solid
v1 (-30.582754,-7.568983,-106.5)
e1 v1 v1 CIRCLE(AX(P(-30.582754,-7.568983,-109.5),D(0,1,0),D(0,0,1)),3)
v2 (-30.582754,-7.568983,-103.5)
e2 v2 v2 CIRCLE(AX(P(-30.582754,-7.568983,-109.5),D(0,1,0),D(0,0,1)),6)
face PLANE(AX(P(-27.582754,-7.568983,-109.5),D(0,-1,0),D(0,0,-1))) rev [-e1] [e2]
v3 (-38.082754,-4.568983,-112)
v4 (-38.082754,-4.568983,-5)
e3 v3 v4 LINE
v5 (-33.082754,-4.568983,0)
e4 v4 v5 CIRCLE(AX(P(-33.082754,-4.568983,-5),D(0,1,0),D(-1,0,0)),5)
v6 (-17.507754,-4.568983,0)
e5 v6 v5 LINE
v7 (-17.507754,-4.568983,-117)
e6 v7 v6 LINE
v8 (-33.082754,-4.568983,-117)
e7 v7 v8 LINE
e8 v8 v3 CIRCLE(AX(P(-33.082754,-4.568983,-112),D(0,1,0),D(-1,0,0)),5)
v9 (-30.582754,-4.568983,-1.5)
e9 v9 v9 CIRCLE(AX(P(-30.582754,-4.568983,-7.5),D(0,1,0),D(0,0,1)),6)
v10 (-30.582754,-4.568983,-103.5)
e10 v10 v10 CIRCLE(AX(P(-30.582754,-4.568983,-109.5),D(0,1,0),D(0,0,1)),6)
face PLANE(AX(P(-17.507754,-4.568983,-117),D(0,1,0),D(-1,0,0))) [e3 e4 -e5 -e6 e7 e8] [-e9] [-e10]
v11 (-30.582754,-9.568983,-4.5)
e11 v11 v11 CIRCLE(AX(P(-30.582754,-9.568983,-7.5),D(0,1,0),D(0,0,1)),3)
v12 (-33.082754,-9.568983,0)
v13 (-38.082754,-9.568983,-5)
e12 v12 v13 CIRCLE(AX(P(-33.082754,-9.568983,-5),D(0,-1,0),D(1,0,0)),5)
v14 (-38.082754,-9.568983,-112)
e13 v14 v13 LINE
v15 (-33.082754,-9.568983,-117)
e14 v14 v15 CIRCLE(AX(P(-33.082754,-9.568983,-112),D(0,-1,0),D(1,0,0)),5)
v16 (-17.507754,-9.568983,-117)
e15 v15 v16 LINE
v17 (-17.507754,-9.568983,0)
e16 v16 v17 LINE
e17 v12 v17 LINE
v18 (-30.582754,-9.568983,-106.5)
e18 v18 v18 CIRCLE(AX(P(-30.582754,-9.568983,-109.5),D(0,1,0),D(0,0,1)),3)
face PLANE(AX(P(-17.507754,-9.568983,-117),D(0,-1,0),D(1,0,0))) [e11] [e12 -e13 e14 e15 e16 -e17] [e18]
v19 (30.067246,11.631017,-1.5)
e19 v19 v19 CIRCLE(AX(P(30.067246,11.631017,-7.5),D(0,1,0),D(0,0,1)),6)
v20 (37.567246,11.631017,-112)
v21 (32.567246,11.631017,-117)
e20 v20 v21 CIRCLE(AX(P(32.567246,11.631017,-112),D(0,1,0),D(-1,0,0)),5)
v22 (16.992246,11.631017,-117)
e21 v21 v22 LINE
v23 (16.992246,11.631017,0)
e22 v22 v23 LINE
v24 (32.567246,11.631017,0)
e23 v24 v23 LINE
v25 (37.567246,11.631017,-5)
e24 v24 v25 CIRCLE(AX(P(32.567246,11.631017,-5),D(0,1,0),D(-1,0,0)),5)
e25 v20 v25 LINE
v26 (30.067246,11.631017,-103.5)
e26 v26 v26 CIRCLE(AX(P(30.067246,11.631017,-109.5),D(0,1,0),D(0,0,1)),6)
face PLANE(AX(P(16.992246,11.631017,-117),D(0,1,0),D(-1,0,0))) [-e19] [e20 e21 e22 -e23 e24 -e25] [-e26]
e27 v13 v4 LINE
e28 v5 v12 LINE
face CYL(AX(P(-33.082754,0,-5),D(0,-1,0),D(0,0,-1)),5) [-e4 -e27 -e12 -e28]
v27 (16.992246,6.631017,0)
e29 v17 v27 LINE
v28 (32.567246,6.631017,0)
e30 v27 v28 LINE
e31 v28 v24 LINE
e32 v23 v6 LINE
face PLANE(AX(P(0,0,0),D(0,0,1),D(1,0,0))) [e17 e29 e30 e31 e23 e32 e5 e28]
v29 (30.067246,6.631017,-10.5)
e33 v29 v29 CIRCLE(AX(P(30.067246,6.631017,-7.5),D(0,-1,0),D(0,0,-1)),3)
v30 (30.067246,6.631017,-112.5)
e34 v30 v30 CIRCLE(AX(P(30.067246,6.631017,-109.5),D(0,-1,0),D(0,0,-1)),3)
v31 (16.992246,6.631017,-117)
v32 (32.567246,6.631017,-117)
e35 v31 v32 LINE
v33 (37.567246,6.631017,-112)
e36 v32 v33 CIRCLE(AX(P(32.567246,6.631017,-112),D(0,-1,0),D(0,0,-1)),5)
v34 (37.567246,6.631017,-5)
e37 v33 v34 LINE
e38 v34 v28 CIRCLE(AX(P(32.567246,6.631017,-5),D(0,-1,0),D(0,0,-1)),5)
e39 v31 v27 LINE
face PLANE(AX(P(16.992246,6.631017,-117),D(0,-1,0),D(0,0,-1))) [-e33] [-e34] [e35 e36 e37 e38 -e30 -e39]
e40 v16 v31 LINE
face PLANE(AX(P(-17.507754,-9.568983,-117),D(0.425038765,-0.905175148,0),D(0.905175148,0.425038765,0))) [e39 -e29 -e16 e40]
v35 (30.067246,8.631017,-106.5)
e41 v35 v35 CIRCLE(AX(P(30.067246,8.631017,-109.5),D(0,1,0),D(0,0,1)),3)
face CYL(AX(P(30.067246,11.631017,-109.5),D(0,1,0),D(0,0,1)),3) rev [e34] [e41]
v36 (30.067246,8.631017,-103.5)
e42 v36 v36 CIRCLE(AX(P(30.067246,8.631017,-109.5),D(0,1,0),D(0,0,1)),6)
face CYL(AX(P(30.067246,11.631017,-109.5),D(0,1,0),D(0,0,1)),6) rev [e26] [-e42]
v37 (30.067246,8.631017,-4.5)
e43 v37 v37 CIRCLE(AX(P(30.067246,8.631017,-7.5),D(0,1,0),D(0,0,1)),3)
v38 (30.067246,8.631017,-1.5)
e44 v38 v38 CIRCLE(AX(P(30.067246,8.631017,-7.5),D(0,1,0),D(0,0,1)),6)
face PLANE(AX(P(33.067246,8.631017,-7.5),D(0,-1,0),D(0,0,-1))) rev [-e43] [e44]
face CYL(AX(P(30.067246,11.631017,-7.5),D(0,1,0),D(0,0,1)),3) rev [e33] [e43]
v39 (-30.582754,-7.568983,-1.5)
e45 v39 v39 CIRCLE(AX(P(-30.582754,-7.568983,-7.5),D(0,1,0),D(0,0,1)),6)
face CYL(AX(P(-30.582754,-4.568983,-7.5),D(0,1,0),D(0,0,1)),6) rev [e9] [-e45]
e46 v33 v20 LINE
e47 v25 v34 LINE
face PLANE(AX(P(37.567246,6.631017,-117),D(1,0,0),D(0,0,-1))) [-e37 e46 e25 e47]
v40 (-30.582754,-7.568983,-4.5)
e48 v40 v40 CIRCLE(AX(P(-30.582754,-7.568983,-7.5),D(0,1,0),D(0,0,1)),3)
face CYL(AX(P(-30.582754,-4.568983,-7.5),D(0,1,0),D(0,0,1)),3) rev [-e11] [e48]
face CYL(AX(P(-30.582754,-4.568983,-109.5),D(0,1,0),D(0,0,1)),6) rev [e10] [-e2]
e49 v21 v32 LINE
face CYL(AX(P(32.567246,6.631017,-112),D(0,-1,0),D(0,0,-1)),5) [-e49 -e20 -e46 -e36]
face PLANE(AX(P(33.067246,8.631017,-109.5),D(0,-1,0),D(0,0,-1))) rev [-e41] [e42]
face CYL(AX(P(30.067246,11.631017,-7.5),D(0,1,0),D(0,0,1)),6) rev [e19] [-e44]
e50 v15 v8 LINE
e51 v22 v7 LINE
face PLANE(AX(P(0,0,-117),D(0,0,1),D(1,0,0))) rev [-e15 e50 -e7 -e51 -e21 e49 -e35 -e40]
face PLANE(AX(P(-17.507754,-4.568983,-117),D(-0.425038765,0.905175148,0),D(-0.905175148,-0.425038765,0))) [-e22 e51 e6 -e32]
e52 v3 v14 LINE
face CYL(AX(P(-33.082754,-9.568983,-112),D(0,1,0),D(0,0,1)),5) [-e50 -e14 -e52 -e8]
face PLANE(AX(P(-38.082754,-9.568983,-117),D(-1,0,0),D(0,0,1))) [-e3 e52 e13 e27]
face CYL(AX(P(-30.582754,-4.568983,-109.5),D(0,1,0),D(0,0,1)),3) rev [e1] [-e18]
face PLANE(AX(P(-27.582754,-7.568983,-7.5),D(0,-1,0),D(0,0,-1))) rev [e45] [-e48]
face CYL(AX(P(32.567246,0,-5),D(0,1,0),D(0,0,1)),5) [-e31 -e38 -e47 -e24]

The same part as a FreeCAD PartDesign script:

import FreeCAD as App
import Part
import Sketcher
from FreeCAD import Vector
Q = App.Units.Quantity


def edges_at(feature, points):
    """Names of the edges that pass closest to the given points."""
    edges = feature.Shape.Edges
    near = lambda p: min(range(len(edges)), key=lambda i: edges[i].distToShape(Part.Vertex(*p))[0])
    return sorted({f"Edge{near(p) + 1}" for p in points})

doc = App.newDocument("Part")
body = doc.addObject("PartDesign::Body", "Body")

# Sketch on XY plane
sketch1 = body.newObject("Sketcher::SketchObject", "Sketch")
sketch1.AttachmentSupport = (doc.getObject("XY_Plane"), [""])
sketch1.MapMode = "FlatFace"
sketch1.addGeometry(Part.LineSegment(Vector(17, 12, 0), Vector(-18, -5, 0)), False)
sketch1.addGeometry(Part.LineSegment(Vector(-18, -5, 0), Vector(-38, -5, 0)), False)
sketch1.addGeometry(Part.LineSegment(Vector(-38, -5, 0), Vector(-38, -10, 0)), False)
sketch1.addGeometry(Part.LineSegment(Vector(-38, -10, 0), Vector(-18, -10, 0)), False)
sketch1.addGeometry(Part.LineSegment(Vector(-18, -10, 0), Vector(17, 7, 0)), False)
sketch1.addGeometry(Part.LineSegment(Vector(17, 7, 0), Vector(38, 7, 0)), False)
sketch1.addGeometry(Part.LineSegment(Vector(38, 7, 0), Vector(38, 12, 0)), False)
sketch1.addGeometry(Part.LineSegment(Vector(38, 12, 0), Vector(17, 12, 0)), False)
sketch1.addConstraint(Sketcher.Constraint("Coincident", 0, 2, 1, 1))
sketch1.addConstraint(Sketcher.Constraint("Coincident", 1, 2, 2, 1))
sketch1.addConstraint(Sketcher.Constraint("Coincident", 2, 2, 3, 1))
sketch1.addConstraint(Sketcher.Constraint("Coincident", 3, 2, 4, 1))
sketch1.addConstraint(Sketcher.Constraint("Coincident", 4, 2, 5, 1))
sketch1.addConstraint(Sketcher.Constraint("Coincident", 5, 2, 6, 1))
sketch1.addConstraint(Sketcher.Constraint("Coincident", 6, 2, 7, 1))
sketch1.addConstraint(Sketcher.Constraint("Coincident", 7, 2, 0, 1))
sketch1.addConstraint(Sketcher.Constraint("Horizontal", 1))
sketch1.addConstraint(Sketcher.Constraint("Vertical", 2))
sketch1.addConstraint(Sketcher.Constraint("Horizontal", 3))
sketch1.addConstraint(Sketcher.Constraint("Horizontal", 5))
sketch1.addConstraint(Sketcher.Constraint("Vertical", 6))
sketch1.addConstraint(Sketcher.Constraint("Horizontal", 7))
sketch1.addConstraint(Sketcher.Constraint("Parallel", 0, 4))
sketch1.addConstraint(Sketcher.Constraint("Vertical", 0, 2, 3, 2))
sketch1.addConstraint(Sketcher.Constraint("Vertical", 4, 2, 7, 2))
sketch1.addConstraint(Sketcher.Constraint("Equal", 3, 5))
sketch1.addConstraint(Sketcher.Constraint("DistanceY", 2, 2, 2, 1, Q("5 mm")))
sketch1.addConstraint(Sketcher.Constraint("DistanceX", 0, 2, 4, 2, Q("34.5 mm")))
sketch1.addConstraint(Sketcher.Constraint("DistanceY", 0, 2, 4, 2, Q("11.2 mm")))
sketch1.addConstraint(Sketcher.Constraint("DistanceX", 1, 2, 1, 1, Q("20.575 mm")))
sketch1.addConstraint(Sketcher.Constraint("DistanceX", 0, 2, -1, 1, Q("17.507754 mm")))
sketch1.addConstraint(Sketcher.Constraint("DistanceY", 0, 2, -1, 1, Q("4.568983 mm")))
pad1 = body.newObject("PartDesign::Pad", "Pad")
pad1.Profile = sketch1
pad1.Length = 117
pad1.Reversed = True

# Sketch on XZ plane
sketch2 = body.newObject("Sketcher::SketchObject", "Sketch001")
sketch2.AttachmentSupport = (doc.getObject("XZ_Plane"), [""])
sketch2.MapMode = "FlatFace"
sketch2.AttachmentOffset = App.Placement(Vector(0, 0, 4.568983), App.Rotation())
sketch2.addGeometry(Part.Circle(Vector(-30.6, -109.5, 0), Vector(0, 0, 1), 3), False)
sketch2.addGeometry(Part.Circle(Vector(-30.6, -7.5, 0), Vector(0, 0, 1), 3), False)
sketch2.addConstraint(Sketcher.Constraint("Equal", 0, 1))
sketch2.addConstraint(Sketcher.Constraint("Vertical", 0, 3, 1, 3))
sketch2.addConstraint(Sketcher.Constraint("Diameter", 0, Q("6 mm")))
sketch2.addConstraint(Sketcher.Constraint("DistanceY", 0, 3, 1, 3, Q("102 mm")))
sketch2.addConstraint(Sketcher.Constraint("DistanceY", 0, 3, -1, 1, Q("109.5 mm")))
sketch2.addConstraint(Sketcher.Constraint("DistanceX", 0, 3, -1, 1, Q("30.582754 mm")))
doc.recompute()
hole = body.newObject("PartDesign::Hole", "Hole")
hole.Profile = sketch2
hole.ThreadType = "None"
hole.Diameter = 6
hole.DepthType = "ThroughAll"
hole.HoleCutType = "Counterbore"
hole.HoleCutDiameter = 12
hole.HoleCutDepth = 3
hole.Reversed = True

# Sketch on XZ plane
sketch3 = body.newObject("Sketcher::SketchObject", "Sketch002")
sketch3.AttachmentSupport = (doc.getObject("XZ_Plane"), [""])
sketch3.MapMode = "FlatFace"
sketch3.AttachmentOffset = App.Placement(Vector(0, 0, -11.631017), App.Rotation())
sketch3.addGeometry(Part.Circle(Vector(30.1, -7.5, 0), Vector(0, 0, 1), 3), False)
sketch3.addGeometry(Part.Circle(Vector(30.1, -109.5, 0), Vector(0, 0, 1), 3), False)
sketch3.addConstraint(Sketcher.Constraint("Equal", 0, 1))
sketch3.addConstraint(Sketcher.Constraint("Vertical", 0, 3, 1, 3))
sketch3.addConstraint(Sketcher.Constraint("Diameter", 0, Q("6 mm")))
sketch3.addConstraint(Sketcher.Constraint("DistanceY", 1, 3, 0, 3, Q("102 mm")))
sketch3.addConstraint(Sketcher.Constraint("DistanceY", 0, 3, -1, 1, Q("7.5 mm")))
sketch3.addConstraint(Sketcher.Constraint("DistanceX", -1, 1, 0, 3, Q("30.067246 mm")))
doc.recompute()
hole2 = body.newObject("PartDesign::Hole", "Hole001")
hole2.Profile = sketch3
hole2.ThreadType = "None"
hole2.Diameter = 6
hole2.DepthType = "ThroughAll"
hole2.HoleCutType = "Counterbore"
hole2.HoleCutDiameter = 12
hole2.HoleCutDepth = 3
hole2.Reversed = True
doc.recompute()

fillet = body.newObject("PartDesign::Fillet", "Fillet")
fillet.Base = (hole2, edges_at(hole2, [
    (37.567, 9.131, 0),
    (37.567, 9.131, -117),
    (-38.083, -7.069, -117),
    (-38.083, -7.069, 0),
]))
fillet.Radius = 5

doc.recompute()
